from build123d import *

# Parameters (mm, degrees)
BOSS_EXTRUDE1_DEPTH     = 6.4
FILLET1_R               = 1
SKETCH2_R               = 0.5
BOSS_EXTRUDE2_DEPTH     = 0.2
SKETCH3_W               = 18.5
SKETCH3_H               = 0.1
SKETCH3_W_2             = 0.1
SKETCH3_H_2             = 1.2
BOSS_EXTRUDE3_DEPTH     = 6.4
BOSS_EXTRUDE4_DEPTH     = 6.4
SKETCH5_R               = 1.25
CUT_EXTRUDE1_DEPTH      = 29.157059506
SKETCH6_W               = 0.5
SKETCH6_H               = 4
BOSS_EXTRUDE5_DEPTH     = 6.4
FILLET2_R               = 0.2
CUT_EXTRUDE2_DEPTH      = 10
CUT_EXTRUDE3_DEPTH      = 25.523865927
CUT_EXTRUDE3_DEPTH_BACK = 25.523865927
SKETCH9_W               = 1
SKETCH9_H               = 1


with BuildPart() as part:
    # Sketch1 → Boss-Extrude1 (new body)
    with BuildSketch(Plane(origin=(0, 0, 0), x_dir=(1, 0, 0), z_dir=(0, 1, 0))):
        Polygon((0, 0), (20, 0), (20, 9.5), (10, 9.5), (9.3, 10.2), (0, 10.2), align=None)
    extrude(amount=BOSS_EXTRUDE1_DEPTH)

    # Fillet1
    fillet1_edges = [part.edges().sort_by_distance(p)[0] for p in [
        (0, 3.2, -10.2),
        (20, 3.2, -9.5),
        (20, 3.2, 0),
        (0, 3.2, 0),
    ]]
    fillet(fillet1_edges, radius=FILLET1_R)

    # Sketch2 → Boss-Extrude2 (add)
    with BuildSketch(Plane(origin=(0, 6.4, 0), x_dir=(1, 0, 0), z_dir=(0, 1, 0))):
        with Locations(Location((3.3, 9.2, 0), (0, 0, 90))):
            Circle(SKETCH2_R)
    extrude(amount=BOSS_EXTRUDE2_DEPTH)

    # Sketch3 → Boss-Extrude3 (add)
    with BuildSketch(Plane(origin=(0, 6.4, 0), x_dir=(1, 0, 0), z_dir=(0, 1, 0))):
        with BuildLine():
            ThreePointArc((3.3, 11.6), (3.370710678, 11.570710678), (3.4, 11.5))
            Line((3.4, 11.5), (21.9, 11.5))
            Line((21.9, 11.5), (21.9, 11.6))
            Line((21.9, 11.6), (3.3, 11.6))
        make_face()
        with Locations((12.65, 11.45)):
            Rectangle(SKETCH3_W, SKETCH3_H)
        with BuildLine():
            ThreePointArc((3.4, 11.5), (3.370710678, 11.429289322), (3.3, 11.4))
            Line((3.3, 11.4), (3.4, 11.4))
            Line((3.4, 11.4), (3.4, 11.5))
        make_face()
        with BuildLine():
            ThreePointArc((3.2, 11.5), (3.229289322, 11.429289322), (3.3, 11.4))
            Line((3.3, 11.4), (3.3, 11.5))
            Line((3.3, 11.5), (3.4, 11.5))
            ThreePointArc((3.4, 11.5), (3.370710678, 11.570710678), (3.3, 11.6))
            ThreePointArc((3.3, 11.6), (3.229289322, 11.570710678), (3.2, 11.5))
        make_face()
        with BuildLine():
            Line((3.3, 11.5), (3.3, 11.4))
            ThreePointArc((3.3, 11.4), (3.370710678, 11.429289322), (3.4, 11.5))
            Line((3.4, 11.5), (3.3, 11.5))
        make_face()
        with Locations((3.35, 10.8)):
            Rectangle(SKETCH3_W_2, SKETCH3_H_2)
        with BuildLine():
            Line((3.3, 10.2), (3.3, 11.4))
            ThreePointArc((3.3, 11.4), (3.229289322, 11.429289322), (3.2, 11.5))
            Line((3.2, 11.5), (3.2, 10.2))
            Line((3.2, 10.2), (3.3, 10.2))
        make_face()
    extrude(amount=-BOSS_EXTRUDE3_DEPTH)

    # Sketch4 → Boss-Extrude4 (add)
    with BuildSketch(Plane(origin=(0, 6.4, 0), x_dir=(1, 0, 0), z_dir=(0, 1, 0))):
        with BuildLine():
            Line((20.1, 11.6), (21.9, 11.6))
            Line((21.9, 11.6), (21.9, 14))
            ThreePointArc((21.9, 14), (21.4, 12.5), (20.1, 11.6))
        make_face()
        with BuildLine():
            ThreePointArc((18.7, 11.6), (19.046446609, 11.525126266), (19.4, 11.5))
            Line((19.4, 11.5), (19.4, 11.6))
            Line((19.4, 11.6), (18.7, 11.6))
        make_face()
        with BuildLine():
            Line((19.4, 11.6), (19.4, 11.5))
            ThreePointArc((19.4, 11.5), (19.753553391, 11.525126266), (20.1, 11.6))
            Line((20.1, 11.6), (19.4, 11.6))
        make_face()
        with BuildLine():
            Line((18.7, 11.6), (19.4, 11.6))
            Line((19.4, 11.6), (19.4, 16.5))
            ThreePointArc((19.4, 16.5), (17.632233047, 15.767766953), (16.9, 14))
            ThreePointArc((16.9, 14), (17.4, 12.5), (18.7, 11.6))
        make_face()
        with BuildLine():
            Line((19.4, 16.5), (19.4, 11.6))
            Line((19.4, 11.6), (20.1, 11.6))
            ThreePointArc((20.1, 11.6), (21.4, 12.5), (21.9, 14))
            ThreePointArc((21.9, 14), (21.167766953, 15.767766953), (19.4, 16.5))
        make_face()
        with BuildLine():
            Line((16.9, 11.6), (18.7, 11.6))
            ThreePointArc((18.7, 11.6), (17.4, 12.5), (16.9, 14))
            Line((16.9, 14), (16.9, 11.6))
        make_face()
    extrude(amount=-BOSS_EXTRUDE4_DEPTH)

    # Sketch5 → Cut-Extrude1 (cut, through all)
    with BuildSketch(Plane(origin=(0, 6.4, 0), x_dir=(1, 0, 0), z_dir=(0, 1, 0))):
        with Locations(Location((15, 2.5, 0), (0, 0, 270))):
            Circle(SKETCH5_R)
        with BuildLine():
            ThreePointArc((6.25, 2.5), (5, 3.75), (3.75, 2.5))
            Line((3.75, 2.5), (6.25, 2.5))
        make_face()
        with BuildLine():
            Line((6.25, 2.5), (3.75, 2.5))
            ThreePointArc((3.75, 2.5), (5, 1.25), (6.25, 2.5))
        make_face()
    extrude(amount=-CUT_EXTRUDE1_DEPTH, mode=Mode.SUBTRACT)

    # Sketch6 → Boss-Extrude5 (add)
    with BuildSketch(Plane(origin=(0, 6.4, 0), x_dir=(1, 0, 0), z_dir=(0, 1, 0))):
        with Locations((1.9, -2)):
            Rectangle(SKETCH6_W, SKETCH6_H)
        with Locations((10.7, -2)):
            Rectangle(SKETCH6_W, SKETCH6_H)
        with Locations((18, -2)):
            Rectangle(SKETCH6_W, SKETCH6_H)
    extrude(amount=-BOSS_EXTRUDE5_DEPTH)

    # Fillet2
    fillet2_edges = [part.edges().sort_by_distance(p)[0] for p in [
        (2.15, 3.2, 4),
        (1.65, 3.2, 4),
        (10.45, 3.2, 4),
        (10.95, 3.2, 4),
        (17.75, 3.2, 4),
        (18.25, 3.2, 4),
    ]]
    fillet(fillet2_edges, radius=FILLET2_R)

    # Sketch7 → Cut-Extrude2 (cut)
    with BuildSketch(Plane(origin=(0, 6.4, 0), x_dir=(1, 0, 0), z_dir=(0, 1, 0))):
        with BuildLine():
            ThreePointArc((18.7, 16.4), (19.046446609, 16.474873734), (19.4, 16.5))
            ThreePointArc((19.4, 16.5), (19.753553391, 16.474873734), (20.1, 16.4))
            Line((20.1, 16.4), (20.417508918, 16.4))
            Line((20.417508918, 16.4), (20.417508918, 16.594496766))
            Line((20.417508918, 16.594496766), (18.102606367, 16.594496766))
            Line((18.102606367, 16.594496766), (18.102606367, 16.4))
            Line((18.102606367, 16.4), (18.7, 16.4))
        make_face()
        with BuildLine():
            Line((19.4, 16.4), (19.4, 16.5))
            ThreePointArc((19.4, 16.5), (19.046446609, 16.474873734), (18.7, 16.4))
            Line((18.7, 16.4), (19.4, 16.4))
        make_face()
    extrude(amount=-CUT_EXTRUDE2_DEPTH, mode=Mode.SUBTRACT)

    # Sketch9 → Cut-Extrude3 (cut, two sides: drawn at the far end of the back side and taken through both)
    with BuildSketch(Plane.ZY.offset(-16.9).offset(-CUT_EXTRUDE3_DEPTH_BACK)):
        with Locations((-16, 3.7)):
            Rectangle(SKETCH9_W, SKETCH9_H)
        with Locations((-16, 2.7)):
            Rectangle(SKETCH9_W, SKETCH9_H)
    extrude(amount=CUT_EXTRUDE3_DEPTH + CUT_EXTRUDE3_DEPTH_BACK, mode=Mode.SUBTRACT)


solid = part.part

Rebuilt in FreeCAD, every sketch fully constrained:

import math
import FreeCAD as App
import Part
import Sketcher

V = App.Vector
Q = App.Units.Quantity


def edges_at(feature, points):
    """Names of the edges that pass closest to the given points."""
    edges = feature.Shape.Edges
    near = lambda p: min(range(len(edges)), key=lambda i: edges[i].distToShape(Part.Vertex(*p))[0])
    return sorted({f"Edge{near(p) + 1}" for p in points})

doc = App.newDocument("Part")
body = doc.addObject("PartDesign::Body", "Body")

# Sketch on XZ plane
sketch1 = doc.addObject("Sketcher::SketchObject", "Sketch")
body.addObject(sketch1)
sketch1.AttachmentSupport = (doc.XZ_Plane, [""])
sketch1.MapMode = "FlatFace"
sketch1.addGeometry([
    Part.LineSegment(V(0, 0, 0), V(20, 0, 0)),  # 0
    Part.LineSegment(V(20, 0, 0), V(20, -9.5, 0)),  # 1
    Part.LineSegment(V(20, -9.5, 0), V(10, -9.5, 0)),  # 2
    Part.LineSegment(V(10, -9.5, 0), V(9.3, -10.2, 0)),  # 3
    Part.LineSegment(V(9.3, -10.2, 0), V(0, -10.2, 0)),  # 4
    Part.LineSegment(V(0, -10.2, 0), V(0, 0, 0)),  # 5
], False)
sketch1.addConstraint([
    Sketcher.Constraint("Coincident", 0, 2, 1, 1),
    Sketcher.Constraint("Coincident", 1, 2, 2, 1),
    Sketcher.Constraint("Coincident", 2, 2, 3, 1),
    Sketcher.Constraint("Coincident", 3, 2, 4, 1),
    Sketcher.Constraint("Coincident", 4, 2, 5, 1),
    Sketcher.Constraint("Coincident", 5, 2, 0, 1),
    Sketcher.Constraint("Horizontal", 0),
    Sketcher.Constraint("Vertical", 1),
    Sketcher.Constraint("Horizontal", 2),
    Sketcher.Constraint("Horizontal", 4),
    Sketcher.Constraint("Vertical", 5),
    Sketcher.Constraint("Coincident", 5, 2, -1, 1),
    Sketcher.Constraint("DistanceX", 0, 1, 0, 2, 20.0),
    Sketcher.Constraint("DistanceX", 2, 2, 2, 1, 10.0),
    Sketcher.Constraint("Angle", 3, Q("-135 deg")),
    Sketcher.Constraint("DistanceX", 4, 2, 4, 1, 9.3),
    Sketcher.Constraint("DistanceY", 1, 2, 1, 1, 9.5),
])
pad1 = doc.addObject("PartDesign::Pad", "Pad")
body.addObject(pad1)
pad1.Profile = sketch1
pad1.Length = 6.4
pad1.Reversed = True
doc.recompute()

fillet = doc.addObject("PartDesign::Fillet", "Fillet")
body.addObject(fillet)
fillet.Base = (pad1, edges_at(pad1, [
    (0, 3.2, -10.2),
    (20, 3.2, -9.5),
    (20, 3.2, 0),
    (0, 3.2, 0),
]))
fillet.Radius = 1

# Sketch on XZ plane
sketch2 = doc.addObject("Sketcher::SketchObject", "Sketch001")
body.addObject(sketch2)
sketch2.AttachmentSupport = (doc.XZ_Plane, [""])
sketch2.MapMode = "FlatFace"
sketch2.AttachmentOffset = App.Placement(V(0, 0, -6.4), App.Rotation())
sketch2.addGeometry(Part.Circle(V(3.3, -9.2, 0), V(0, 0, 1), 0.5), False)
sketch2.addConstraint([
    Sketcher.Constraint("Diameter", 0, 1.0),
    Sketcher.Constraint("DistanceX", -1, 1, 0, 3, 3.3),
    Sketcher.Constraint("DistanceY", 0, 3, -1, 1, 9.2),
])
pad2 = doc.addObject("PartDesign::Pad", "Pad001")
body.addObject(pad2)
pad2.Profile = sketch2
pad2.Length = 0.2
pad2.Reversed = True

# Sketch on XZ plane
sketch3 = doc.addObject("Sketcher::SketchObject", "Sketch002")
body.addObject(sketch3)
sketch3.AttachmentSupport = (doc.XZ_Plane, [""])
sketch3.MapMode = "FlatFace"
sketch3.AttachmentOffset = App.Placement(V(0, 0, -6.4), App.Rotation())
sketch3.addGeometry([
    Part.LineSegment(V(21.9, -11.6, 0), V(3.3, -11.6, 0)),  # 0
    Part.ArcOfCircle(Part.Circle(V(3.3, -11.5, 0), V(0, 0, 1), 0.1), math.radians(180), math.radians(270)),  # 1
    Part.LineSegment(V(3.2, -11.5, 0), V(3.2, -10.2, 0)),  # 2
    Part.LineSegment(V(3.2, -10.2, 0), V(3.4, -10.2, 0)),  # 3
    Part.LineSegment(V(3.4, -10.2, 0), V(3.4, -11.4, 0)),  # 4
    Part.LineSegment(V(3.4, -11.4, 0), V(21.9, -11.4, 0)),  # 5
    Part.LineSegment(V(21.9, -11.4, 0), V(21.9, -11.6, 0)),  # 6
], False)
sketch3.addConstraint([
    Sketcher.Constraint("Tangent", 0, 2, 1, 2),
    Sketcher.Constraint("Tangent", 1, 1, 2, 1),
    Sketcher.Constraint("Coincident", 2, 2, 3, 1),
    Sketcher.Constraint("Coincident", 3, 2, 4, 1),
    Sketcher.Constraint("Coincident", 4, 2, 5, 1),
    Sketcher.Constraint("Coincident", 5, 2, 6, 1),
    Sketcher.Constraint("Coincident", 6, 2, 0, 1),
    Sketcher.Constraint("Horizontal", 0),
    Sketcher.Constraint("Vertical", 2),
    Sketcher.Constraint("Horizontal", 3),
    Sketcher.Constraint("Vertical", 4),
    Sketcher.Constraint("Horizontal", 5),
    Sketcher.Constraint("Vertical", 6),
    Sketcher.Constraint("Equal", 3, 6),
    Sketcher.Constraint("Radius", 1, 0.1),
    Sketcher.Constraint("DistanceX", 0, 2, 0, 1, 18.6),
    Sketcher.Constraint("DistanceX", 3, 1, 3, 2, 0.2),
    Sketcher.Constraint("DistanceY", 2, 1, 2, 2, 1.3),
    Sketcher.Constraint("DistanceX", -1, 1, 1, 3, 3.3),
    Sketcher.Constraint("DistanceY", 1, 3, -1, 1, 11.5),
])
pad3 = doc.addObject("PartDesign::Pad", "Pad002")
body.addObject(pad3)
pad3.Profile = sketch3
pad3.Length = 6.4

# Sketch on XZ plane
sketch4 = doc.addObject("Sketcher::SketchObject", "Sketch003")
body.addObject(sketch4)
sketch4.AttachmentSupport = (doc.XZ_Plane, [""])
sketch4.MapMode = "FlatFace"
sketch4.AttachmentOffset = App.Placement(V(0, 0, -6.4), App.Rotation())
sketch4.addGeometry([
    Part.ArcOfCircle(Part.Circle(V(19.4, -14, 0), V(0, 0, 1), 2.5), math.radians(90), math.radians(106.26)),  # 0
    Part.ArcOfCircle(Part.Circle(V(19.4, -14, 0), V(0, 0, 1), 2.5), math.radians(73.74), math.radians(90)),  # 1
    Part.LineSegment(V(20.1, -11.6, 0), V(21.9, -11.6, 0)),  # 2
    Part.LineSegment(V(21.9, -11.6, 0), V(21.9, -14, 0)),  # 3
    Part.ArcOfCircle(Part.Circle(V(19.4, -14, 0), V(0, 0, 1), 2.5), math.radians(-90), math.radians(0)),  # 4
    Part.ArcOfCircle(Part.Circle(V(19.4, -14, 0), V(0, 0, 1), 2.5), math.radians(180), math.radians(270)),  # 5
    Part.LineSegment(V(16.9, -14, 0), V(16.9, -11.6, 0)),  # 6
    Part.LineSegment(V(16.9, -11.6, 0), V(18.7, -11.6, 0)),  # 7
], False)
sketch4.addConstraint([
    Sketcher.Constraint("Tangent", 0, 1, 1, 2),
    Sketcher.Constraint("Coincident", 1, 1, 2, 1),
    Sketcher.Constraint("Coincident", 2, 2, 3, 1),
    Sketcher.Constraint("Tangent", 3, 2, 4, 2),
    Sketcher.Constraint("Tangent", 4, 1, 5, 2),
    Sketcher.Constraint("Tangent", 5, 1, 6, 1),
    Sketcher.Constraint("Coincident", 6, 2, 7, 1),
    Sketcher.Constraint("Coincident", 7, 2, 0, 2),
    Sketcher.Constraint("Horizontal", 2),
    Sketcher.Constraint("Vertical", 3),
    Sketcher.Constraint("Vertical", 6),
    Sketcher.Constraint("Horizontal", 7),
    Sketcher.Constraint("Coincident", 4, 3, 0, 3),
    Sketcher.Constraint("Equal", 0, 1),
    Sketcher.Constraint("Equal", 1, 4),
    Sketcher.Constraint("Equal", 4, 5),
    Sketcher.Constraint("Horizontal", 2, 2, 6, 2),
    Sketcher.Constraint("Vertical", 5, 3, 0, 1),
    Sketcher.Constraint("Vertical", 0, 1, 4, 1),
    Sketcher.Constraint("Radius", 0, 2.5),
    Sketcher.Constraint("DistanceX", 2, 1, 2, 2, 1.8),
    Sketcher.Constraint("DistanceY", 0, 3, -1, 1, 14.0),
    Sketcher.Constraint("DistanceX", -1, 1, 0, 3, 19.4),
])
pad4 = doc.addObject("PartDesign::Pad", "Pad003")
body.addObject(pad4)
pad4.Profile = sketch4
pad4.Length = 6.4

# Sketch on XZ plane
sketch5 = doc.addObject("Sketcher::SketchObject", "Sketch004")
body.addObject(sketch5)
sketch5.AttachmentSupport = (doc.XZ_Plane, [""])
sketch5.MapMode = "FlatFace"
sketch5.AttachmentOffset = App.Placement(V(0, 0, -6.4), App.Rotation())
sketch5.addGeometry([
    Part.Circle(V(15, -2.5, 0), V(0, 0, 1), 1.2),
    Part.Circle(V(5, -2.5, 0), V(0, 0, 1), 1.2),
], False)
sketch5.addConstraint([
    Sketcher.Constraint("Equal", 0, 1),
    Sketcher.Constraint("Horizontal", 0, 3, 1, 3),
    Sketcher.Constraint("Diameter", 0, 2.5),
    Sketcher.Constraint("DistanceX", -1, 1, 0, 3, 15.0),
    Sketcher.Constraint("DistanceX", -1, 1, 1, 3, 5.0),
    Sketcher.Constraint("DistanceY", 0, 3, -1, 1, 2.5),
])
pocket1 = doc.addObject("PartDesign::Pocket", "Pocket")
body.addObject(pocket1)
pocket1.Profile = sketch5
pocket1.Type = "ThroughAll"
pocket1.Reversed = True

# Sketch on XZ plane
sketch6 = doc.addObject("Sketcher::SketchObject", "Sketch005")
body.addObject(sketch6)
sketch6.AttachmentSupport = (doc.XZ_Plane, [""])
sketch6.MapMode = "FlatFace"
sketch6.AttachmentOffset = App.Placement(V(0, 0, -6.4), App.Rotation())
sketch6.addGeometry([
    Part.LineSegment(V(1.6, 0, 0), V(1.6, 4, 0)),  # 0
    Part.LineSegment(V(1.6, 4, 0), V(2.1, 4, 0)),  # 1
    Part.LineSegment(V(2.1, 4, 0), V(2.1, 0, 0)),  # 2
    Part.LineSegment(V(2.1, 0, 0), V(1.6, 0, 0)),  # 3
    Part.LineSegment(V(10.4, 0, 0), V(10.4, 4, 0)),  # 4
    Part.LineSegment(V(10.4, 4, 0), V(10.9, 4, 0)),  # 5
    Part.LineSegment(V(10.9, 4, 0), V(10.9, 0, 0)),  # 6
    Part.LineSegment(V(10.9, 0, 0), V(10.4, 0, 0)),  # 7
    Part.LineSegment(V(17.8, 0, 0), V(17.8, 4, 0)),  # 8
    Part.LineSegment(V(17.8, 4, 0), V(18.2, 4, 0)),  # 9
    Part.LineSegment(V(18.2, 4, 0), V(18.2, 0, 0)),  # 10
    Part.LineSegment(V(18.2, 0, 0), V(17.8, 0, 0)),  # 11
], False)
sketch6.addConstraint([
    Sketcher.Constraint("Coincident", 0, 2, 1, 1),
    Sketcher.Constraint("Coincident", 1, 2, 2, 1),
    Sketcher.Constraint("Coincident", 2, 2, 3, 1),
    Sketcher.Constraint("Coincident", 3, 2, 0, 1),
    Sketcher.Constraint("Coincident", 4, 2, 5, 1),
    Sketcher.Constraint("Coincident", 5, 2, 6, 1),
    Sketcher.Constraint("Coincident", 6, 2, 7, 1),
    Sketcher.Constraint("Coincident", 7, 2, 4, 1),
    Sketcher.Constraint("Coincident", 8, 2, 9, 1),
    Sketcher.Constraint("Coincident", 9, 2, 10, 1),
    Sketcher.Constraint("Coincident", 10, 2, 11, 1),
    Sketcher.Constraint("Coincident", 11, 2, 8, 1),
    Sketcher.Constraint("Vertical", 0),
    Sketcher.Constraint("Horizontal", 1),
    Sketcher.Constraint("Vertical", 2),
    Sketcher.Constraint("Horizontal", 3),
    Sketcher.Constraint("Vertical", 4),
    Sketcher.Constraint("Horizontal", 5),
    Sketcher.Constraint("Vertical", 6),
    Sketcher.Constraint("Horizontal", 7),
    Sketcher.Constraint("Vertical", 8),
    Sketcher.Constraint("Horizontal", 9),
    Sketcher.Constraint("Vertical", 10),
    Sketcher.Constraint("Horizontal", 11),
    Sketcher.Constraint("PointOnObject", 2, 2, -1),
    Sketcher.Constraint("PointOnObject", 6, 2, -1),
    Sketcher.Constraint("PointOnObject", 10, 2, -1),
    Sketcher.Constraint("Horizontal", 1, 2, 4, 2),
    Sketcher.Constraint("Horizontal", 5, 2, 8, 2),
    Sketcher.Constraint("Equal", 3, 5),
    Sketcher.Constraint("Equal", 7, 9),
    Sketcher.Constraint("DistanceY", 0, 1, 0, 2, 4.0),
    Sketcher.Constraint("DistanceX", 1, 1, 1, 2, 0.5),
    Sketcher.Constraint("DistanceX", 1, 2, 4, 2, 8.3),
    Sketcher.Constraint("DistanceX", 5, 2, 8, 2, 6.8),
    Sketcher.Constraint("DistanceX", -1, 1, 0, 2, 1.65),
])
pad5 = doc.addObject("PartDesign::Pad", "Pad004")
body.addObject(pad5)
pad5.Profile = sketch6
pad5.Length = 6.4
doc.recompute()

fillet2 = doc.addObject("PartDesign::Fillet", "Fillet001")
body.addObject(fillet2)
fillet2.Base = (pad5, edges_at(pad5, [
    (2.15, 3.2, 4),
    (1.65, 3.2, 4),
    (10.45, 3.2, 4),
    (10.95, 3.2, 4),
    (17.75, 3.2, 4),
    (18.25, 3.2, 4),
]))
fillet2.Radius = 0.2

# Sketch on XZ plane
sketch7 = doc.addObject("Sketcher::SketchObject", "Sketch006")
body.addObject(sketch7)
sketch7.AttachmentSupport = (doc.XZ_Plane, [""])
sketch7.MapMode = "FlatFace"
sketch7.AttachmentOffset = App.Placement(V(0, 0, -6.4), App.Rotation())
sketch7.addGeometry([
    Part.ArcOfCircle(Part.Circle(V(19.4, -14, 0), V(0, 0, 1), 2.5), math.radians(-90), math.radians(-73.74)),  # 0
    Part.LineSegment(V(20.1, -16.4, 0), V(20.42, -16.4, 0)),  # 1
    Part.LineSegment(V(20.42, -16.4, 0), V(20.42, -16.59, 0)),  # 2
    Part.LineSegment(V(20.42, -16.59, 0), V(18.1, -16.59, 0)),  # 3
    Part.LineSegment(V(18.1, -16.59, 0), V(18.1, -16.4, 0)),  # 4
    Part.LineSegment(V(18.1, -16.4, 0), V(19.4, -16.4, 0)),  # 5
    Part.LineSegment(V(19.4, -16.4, 0), V(19.4, -16.5, 0)),  # 6
], False)
sketch7.addConstraint([
    Sketcher.Constraint("Coincident", 0, 2, 1, 1),
    Sketcher.Constraint("Coincident", 1, 2, 2, 1),
    Sketcher.Constraint("Coincident", 2, 2, 3, 1),
    Sketcher.Constraint("Coincident", 3, 2, 4, 1),
    Sketcher.Constraint("Coincident", 4, 2, 5, 1),
    Sketcher.Constraint("Coincident", 5, 2, 6, 1),
    Sketcher.Constraint("Coincident", 6, 2, 0, 1),
    Sketcher.Constraint("Horizontal", 1),
    Sketcher.Constraint("Vertical", 2),
    Sketcher.Constraint("Horizontal", 3),
    Sketcher.Constraint("Vertical", 4),
    Sketcher.Constraint("Horizontal", 5),
    Sketcher.Constraint("Vertical", 6),
    Sketcher.Constraint("Horizontal", 1, 2, 4, 2),
    Sketcher.Constraint("Vertical", 0, 3, 5, 2),
    Sketcher.Constraint("Radius", 0, 2.5),
    Sketcher.Constraint("DistanceY", 6, 2, 6, 1, 0.1),
    Sketcher.Constraint("DistanceY", 0, 3, -1, 1, 14.0),
    Sketcher.Constraint("DistanceX", -1, 1, 0, 3, 19.4),
    Sketcher.Constraint("DistanceX", 1, 1, 1, 2, 0.317509),
    Sketcher.Constraint("DistanceX", 3, 2, 3, 1, 2.314903),
    Sketcher.Constraint("DistanceY", 2, 2, 2, 1, 0.194497),
])
pocket2 = doc.addObject("PartDesign::Pocket", "Pocket001")
body.addObject(pocket2)
pocket2.Profile = sketch7
pocket2.Length = 10
pocket2.Reversed = True

# Sketch on YZ plane
sketch8 = doc.addObject("Sketcher::SketchObject", "Sketch007")
body.addObject(sketch8)
sketch8.AttachmentSupport = (doc.YZ_Plane, [""])
sketch8.MapMode = "FlatFace"
sketch8.AttachmentOffset = App.Placement(V(0, 0, 16.9), App.Rotation())
sketch8.addGeometry([
    Part.LineSegment(V(4.2, -16.5, 0), V(2.2, -16.5, 0)),
    Part.LineSegment(V(2.2, -16.5, 0), V(2.2, -15.5, 0)),
    Part.LineSegment(V(2.2, -15.5, 0), V(4.2, -15.5, 0)),
    Part.LineSegment(V(4.2, -15.5, 0), V(4.2, -16.5, 0)),
], False)
sketch8.addConstraint([
    Sketcher.Constraint("Coincident", 0, 2, 1, 1),
    Sketcher.Constraint("Coincident", 1, 2, 2, 1),
    Sketcher.Constraint("Coincident", 2, 2, 3, 1),
    Sketcher.Constraint("Coincident", 3, 2, 0, 1),
    Sketcher.Constraint("Horizontal", 0),
    Sketcher.Constraint("Vertical", 1),
    Sketcher.Constraint("Horizontal", 2),
    Sketcher.Constraint("Vertical", 3),
    Sketcher.Constraint("DistanceX", 0, 2, 0, 1, 2.0),
    Sketcher.Constraint("DistanceY", 1, 1, 1, 2, 1.0),
    Sketcher.Constraint("DistanceX", -1, 1, 0, 2, 2.2),
    Sketcher.Constraint("DistanceY", 0, 2, -1, 1, 16.5),
])
pocket3 = doc.addObject("PartDesign::Pocket", "Pocket002")
body.addObject(pocket3)
pocket3.Profile = sketch8
pocket3.Type = "ThroughAll"
pocket3.Midplane = True

doc.recompute()
